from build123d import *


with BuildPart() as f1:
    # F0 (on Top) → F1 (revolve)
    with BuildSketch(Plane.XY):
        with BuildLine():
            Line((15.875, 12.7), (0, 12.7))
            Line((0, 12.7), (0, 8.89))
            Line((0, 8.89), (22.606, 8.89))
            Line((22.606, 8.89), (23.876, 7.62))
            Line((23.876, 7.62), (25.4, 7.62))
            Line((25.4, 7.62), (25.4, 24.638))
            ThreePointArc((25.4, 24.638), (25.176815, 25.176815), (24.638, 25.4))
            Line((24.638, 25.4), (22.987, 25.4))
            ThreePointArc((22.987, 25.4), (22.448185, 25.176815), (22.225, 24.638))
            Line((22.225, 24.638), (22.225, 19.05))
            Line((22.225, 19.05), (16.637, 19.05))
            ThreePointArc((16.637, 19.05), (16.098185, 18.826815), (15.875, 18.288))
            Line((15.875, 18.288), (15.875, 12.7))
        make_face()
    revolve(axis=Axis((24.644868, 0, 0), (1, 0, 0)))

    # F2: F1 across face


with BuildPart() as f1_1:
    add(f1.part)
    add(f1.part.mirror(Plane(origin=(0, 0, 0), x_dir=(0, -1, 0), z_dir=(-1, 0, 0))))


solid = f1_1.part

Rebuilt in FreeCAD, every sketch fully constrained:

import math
import FreeCAD as App
import Part
import Sketcher

V = App.Vector
Q = App.Units.Quantity

doc = App.newDocument("Part")
body = doc.addObject("PartDesign::Body", "Body")

sketch1 = body.newObject("Sketcher::SketchObject", "Sketch")
sketch1.AttachmentSupport = (doc.getObject("XY_Plane"), [""])
sketch1.MapMode = "FlatFace"
sketch1.addGeometry([
    Part.LineSegment(V(15.9, 12.7, 0), V(0, 12.7, 0)),
    Part.LineSegment(V(0, 12.7, 0), V(0, 8.9, 0)),
    Part.LineSegment(V(0, 8.9, 0), V(22.6, 8.9, 0)),
    Part.LineSegment(V(22.6, 8.9, 0), V(23.9, 7.6, 0)),
    Part.LineSegment(V(23.9, 7.6, 0), V(25.4, 7.6, 0)),
    Part.LineSegment(V(25.4, 7.6, 0), V(25.4, 24.6, 0)),
    Part.ArcOfCircle(Part.Circle(V(24.6, 24.6, 0), V(0, 0, 1), 0.8), math.radians(0), math.radians(90)),
    Part.LineSegment(V(24.6, 25.4, 0), V(23, 25.4, 0)),
    Part.ArcOfCircle(Part.Circle(V(23, 24.6, 0), V(0, 0, 1), 0.8), math.radians(90), math.radians(180)),
    Part.LineSegment(V(22.2, 24.6, 0), V(22.2, 19.1, 0)),
    Part.LineSegment(V(22.2, 19.1, 0), V(16.6, 19.1, 0)),
    Part.ArcOfCircle(Part.Circle(V(16.6, 18.3, 0), V(0, 0, 1), 0.8), math.radians(90), math.radians(180)),
    Part.LineSegment(V(15.9, 18.3, 0), V(15.9, 12.7, 0)),
], False)
sketch1.addConstraint([
    Sketcher.Constraint("Coincident", 0, 2, 1, 1),
    Sketcher.Constraint("Coincident", 1, 2, 2, 1),
    Sketcher.Constraint("Coincident", 2, 2, 3, 1),
    Sketcher.Constraint("Coincident", 3, 2, 4, 1),
    Sketcher.Constraint("Coincident", 4, 2, 5, 1),
    Sketcher.Constraint("Tangent", 5, 2, 6, 1),
    Sketcher.Constraint("Tangent", 6, 2, 7, 1),
    Sketcher.Constraint("Tangent", 7, 2, 8, 1),
    Sketcher.Constraint("Tangent", 8, 2, 9, 1),
    Sketcher.Constraint("Coincident", 9, 2, 10, 1),
    Sketcher.Constraint("Tangent", 10, 2, 11, 1),
    Sketcher.Constraint("Tangent", 11, 2, 12, 1),
    Sketcher.Constraint("Coincident", 12, 2, 0, 1),
    Sketcher.Constraint("Horizontal", 0),
    Sketcher.Constraint("Vertical", 1),
    Sketcher.Constraint("Horizontal", 2),
    Sketcher.Constraint("Horizontal", 4),
    Sketcher.Constraint("Vertical", 5),
    Sketcher.Constraint("Horizontal", 7),
    Sketcher.Constraint("Vertical", 9),
    Sketcher.Constraint("Horizontal", 10),
    Sketcher.Constraint("Vertical", 12),
    Sketcher.Constraint("Equal", 6, 8),
    Sketcher.Constraint("Equal", 8, 11),
    Sketcher.Constraint("PointOnObject", 0, 2, -2),
    Sketcher.Constraint("Equal", 10, 9),
    Sketcher.Constraint("Equal", 9, 12),
    Sketcher.Constraint("Radius", 6, Q("0.03 in")),
    Sketcher.Constraint("DistanceX", -1, 1, 4, 2, Q("1 in")),
    Sketcher.Constraint("DistanceY", -1, 1, 6, 2, Q("1 in")),
    Sketcher.Constraint("Angle", 3, Q("-45 deg")),
    Sketcher.Constraint("DistanceX", 2, 1, 2, 2, Q("0.89 in")),
    Sketcher.Constraint("DistanceX", 4, 1, 4, 2, Q("0.06 in")),
    Sketcher.Constraint("DistanceX", 10, 2, 10, 1, Q("0.22 in")),
    Sketcher.Constraint("DistanceY", 1, 2, 1, 1, Q("0.15 in")),
    Sketcher.Constraint("DistanceX", 0, 2, 0, 1, Q("0.625 in")),
])
revolution = body.newObject("PartDesign::Revolution", "Revolution")
revolution.Profile = sketch1
revolution.ReferenceAxis = (sketch1, ["H_Axis"])
revolution.Angle = 360
body2 = doc.addObject("PartDesign::Body", "Body001")
doc.recompute()

body2.BaseFeature = body
doc.recompute()

mirroring = doc.addObject("Part::Mirroring", "Mirroring")
mirroring.Source = body
mirroring.Base = V(0, 0, 0)
mirroring.Normal = V(-1, 0, 0)
body3 = doc.addObject("PartDesign::Body", "Body002")
body3.BaseFeature = mirroring
boolean = body2.newObject("PartDesign::Boolean", "Boolean")
boolean.Type = "Fuse"
boolean.addObjects([body3])
doc.recompute()
mirroring.Visibility = False

doc.recompute()
